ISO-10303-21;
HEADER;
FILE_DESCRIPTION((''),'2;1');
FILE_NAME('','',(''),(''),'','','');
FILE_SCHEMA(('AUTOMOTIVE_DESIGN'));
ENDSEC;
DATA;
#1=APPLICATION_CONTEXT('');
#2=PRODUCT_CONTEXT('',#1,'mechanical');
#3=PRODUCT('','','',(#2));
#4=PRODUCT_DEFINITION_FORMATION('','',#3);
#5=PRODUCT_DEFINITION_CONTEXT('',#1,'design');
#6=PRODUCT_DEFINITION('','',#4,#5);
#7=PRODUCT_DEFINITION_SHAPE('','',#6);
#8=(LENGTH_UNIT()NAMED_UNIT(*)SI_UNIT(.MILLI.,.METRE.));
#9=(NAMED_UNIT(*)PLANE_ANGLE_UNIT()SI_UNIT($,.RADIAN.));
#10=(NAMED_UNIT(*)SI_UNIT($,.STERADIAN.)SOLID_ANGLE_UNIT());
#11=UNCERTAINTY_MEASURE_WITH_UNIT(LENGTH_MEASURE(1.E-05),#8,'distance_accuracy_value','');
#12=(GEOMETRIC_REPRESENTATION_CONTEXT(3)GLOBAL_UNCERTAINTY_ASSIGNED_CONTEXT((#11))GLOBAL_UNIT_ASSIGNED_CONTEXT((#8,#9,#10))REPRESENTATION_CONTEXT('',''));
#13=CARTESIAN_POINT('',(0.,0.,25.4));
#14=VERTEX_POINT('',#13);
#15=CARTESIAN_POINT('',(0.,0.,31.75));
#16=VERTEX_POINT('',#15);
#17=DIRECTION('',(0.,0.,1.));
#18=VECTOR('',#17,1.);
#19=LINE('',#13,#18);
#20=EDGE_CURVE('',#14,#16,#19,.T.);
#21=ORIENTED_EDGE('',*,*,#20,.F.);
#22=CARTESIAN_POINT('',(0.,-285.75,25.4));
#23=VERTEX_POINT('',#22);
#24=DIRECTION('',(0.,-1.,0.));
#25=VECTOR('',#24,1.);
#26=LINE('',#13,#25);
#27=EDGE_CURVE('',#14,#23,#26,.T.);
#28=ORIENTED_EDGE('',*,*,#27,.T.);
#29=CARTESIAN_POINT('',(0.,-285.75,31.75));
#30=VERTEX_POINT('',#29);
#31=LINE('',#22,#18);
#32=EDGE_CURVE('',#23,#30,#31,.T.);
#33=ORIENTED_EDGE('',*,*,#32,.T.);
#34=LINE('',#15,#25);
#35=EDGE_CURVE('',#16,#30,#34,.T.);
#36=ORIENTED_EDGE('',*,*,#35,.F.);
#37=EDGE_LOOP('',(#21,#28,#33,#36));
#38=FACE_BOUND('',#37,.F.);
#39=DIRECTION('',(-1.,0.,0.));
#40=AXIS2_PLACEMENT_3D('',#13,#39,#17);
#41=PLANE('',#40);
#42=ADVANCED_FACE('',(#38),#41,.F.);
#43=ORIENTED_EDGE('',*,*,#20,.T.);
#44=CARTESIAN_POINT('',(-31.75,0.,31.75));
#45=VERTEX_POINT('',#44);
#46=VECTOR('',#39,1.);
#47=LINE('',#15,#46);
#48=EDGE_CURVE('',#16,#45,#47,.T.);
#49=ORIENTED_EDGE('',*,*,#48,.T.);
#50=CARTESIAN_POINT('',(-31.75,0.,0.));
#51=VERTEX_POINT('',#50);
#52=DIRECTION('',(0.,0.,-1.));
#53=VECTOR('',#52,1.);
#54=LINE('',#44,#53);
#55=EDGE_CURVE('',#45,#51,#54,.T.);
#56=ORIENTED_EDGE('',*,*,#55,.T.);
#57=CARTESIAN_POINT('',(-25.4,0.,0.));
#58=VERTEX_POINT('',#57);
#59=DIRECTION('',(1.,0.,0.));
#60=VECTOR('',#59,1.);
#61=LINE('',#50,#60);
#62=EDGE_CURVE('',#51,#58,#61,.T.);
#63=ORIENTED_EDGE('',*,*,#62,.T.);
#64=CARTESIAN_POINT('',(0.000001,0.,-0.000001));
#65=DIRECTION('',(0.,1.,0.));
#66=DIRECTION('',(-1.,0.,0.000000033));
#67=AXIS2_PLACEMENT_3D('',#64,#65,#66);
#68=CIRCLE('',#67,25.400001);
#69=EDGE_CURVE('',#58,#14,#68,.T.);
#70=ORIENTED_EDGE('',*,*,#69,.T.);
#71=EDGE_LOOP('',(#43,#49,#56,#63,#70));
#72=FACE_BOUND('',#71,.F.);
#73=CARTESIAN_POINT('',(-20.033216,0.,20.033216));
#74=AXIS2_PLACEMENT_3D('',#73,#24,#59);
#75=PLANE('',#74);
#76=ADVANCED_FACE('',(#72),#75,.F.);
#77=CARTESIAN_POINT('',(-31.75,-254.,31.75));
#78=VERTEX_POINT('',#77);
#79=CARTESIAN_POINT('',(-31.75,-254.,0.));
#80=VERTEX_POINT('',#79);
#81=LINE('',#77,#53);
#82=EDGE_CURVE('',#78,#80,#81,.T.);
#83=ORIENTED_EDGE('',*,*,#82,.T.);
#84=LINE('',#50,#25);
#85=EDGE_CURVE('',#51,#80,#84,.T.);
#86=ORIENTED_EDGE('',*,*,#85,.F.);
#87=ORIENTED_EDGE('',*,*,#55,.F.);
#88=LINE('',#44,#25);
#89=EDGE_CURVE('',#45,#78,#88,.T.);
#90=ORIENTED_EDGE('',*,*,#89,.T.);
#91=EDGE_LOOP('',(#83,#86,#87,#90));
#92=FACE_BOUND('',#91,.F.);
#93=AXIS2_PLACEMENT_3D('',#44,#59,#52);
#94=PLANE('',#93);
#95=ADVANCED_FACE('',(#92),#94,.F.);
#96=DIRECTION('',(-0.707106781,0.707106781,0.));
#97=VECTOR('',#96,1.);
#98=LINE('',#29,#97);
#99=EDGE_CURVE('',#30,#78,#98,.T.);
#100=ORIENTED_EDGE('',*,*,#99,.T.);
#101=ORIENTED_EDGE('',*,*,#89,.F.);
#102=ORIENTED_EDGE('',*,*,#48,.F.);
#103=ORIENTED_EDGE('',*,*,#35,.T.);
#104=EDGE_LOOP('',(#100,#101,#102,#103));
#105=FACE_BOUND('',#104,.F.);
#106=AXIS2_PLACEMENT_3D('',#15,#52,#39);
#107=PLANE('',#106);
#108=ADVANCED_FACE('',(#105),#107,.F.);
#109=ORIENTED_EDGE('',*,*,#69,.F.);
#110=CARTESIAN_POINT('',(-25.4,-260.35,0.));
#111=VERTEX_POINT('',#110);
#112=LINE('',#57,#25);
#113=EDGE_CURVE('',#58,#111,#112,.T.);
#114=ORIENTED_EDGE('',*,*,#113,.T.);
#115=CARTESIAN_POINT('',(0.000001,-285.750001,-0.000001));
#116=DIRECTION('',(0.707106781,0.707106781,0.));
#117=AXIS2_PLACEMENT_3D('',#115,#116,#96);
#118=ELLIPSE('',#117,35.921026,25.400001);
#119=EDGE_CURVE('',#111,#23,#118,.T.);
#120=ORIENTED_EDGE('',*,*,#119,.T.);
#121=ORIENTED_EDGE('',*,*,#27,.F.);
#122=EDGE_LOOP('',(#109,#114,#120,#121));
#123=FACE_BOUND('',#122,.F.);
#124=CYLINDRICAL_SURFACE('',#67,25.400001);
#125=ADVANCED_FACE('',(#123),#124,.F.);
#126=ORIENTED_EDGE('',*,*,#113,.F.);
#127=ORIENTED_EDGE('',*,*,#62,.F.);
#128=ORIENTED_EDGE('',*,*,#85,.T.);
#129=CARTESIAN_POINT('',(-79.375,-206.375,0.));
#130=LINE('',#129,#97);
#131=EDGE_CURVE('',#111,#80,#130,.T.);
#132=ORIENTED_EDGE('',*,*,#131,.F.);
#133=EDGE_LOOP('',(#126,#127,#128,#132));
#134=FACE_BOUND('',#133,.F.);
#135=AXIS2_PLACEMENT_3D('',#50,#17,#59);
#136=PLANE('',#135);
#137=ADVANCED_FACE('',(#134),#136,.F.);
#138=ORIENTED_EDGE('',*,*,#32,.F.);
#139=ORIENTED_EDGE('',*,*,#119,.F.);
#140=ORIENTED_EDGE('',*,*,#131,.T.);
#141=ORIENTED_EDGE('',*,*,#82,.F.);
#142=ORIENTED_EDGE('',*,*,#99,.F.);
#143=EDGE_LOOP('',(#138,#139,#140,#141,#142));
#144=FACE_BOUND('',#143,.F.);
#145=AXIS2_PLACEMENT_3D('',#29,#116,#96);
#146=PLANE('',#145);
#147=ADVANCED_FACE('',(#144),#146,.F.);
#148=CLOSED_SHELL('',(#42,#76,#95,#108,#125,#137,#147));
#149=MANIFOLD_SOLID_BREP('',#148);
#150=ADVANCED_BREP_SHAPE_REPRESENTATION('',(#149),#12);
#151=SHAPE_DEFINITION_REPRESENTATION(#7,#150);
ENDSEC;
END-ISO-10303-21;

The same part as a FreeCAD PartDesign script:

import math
import FreeCAD as App
import Part
import Sketcher
Q = App.Units.Quantity


def add_polygon(sketch, points):
    """Adds a closed chain of lines whose ends are joined by coincident constraints."""
    first, n = sketch.GeometryCount, len(points)
    for a, b in zip(points, points[1:] + points[:1]):
        sketch.addGeometry(Part.LineSegment(App.Vector(*a, 0), App.Vector(*b, 0)), False)
    for i in range(n):
        sketch.addConstraint(Sketcher.Constraint("Coincident", first + i, 2, first + (i + 1) % n, 1))

doc = App.newDocument("Part")
body = doc.addObject("PartDesign::Body", "Body")

# Sketch on XZ plane
sketch1 = body.newObject("Sketcher::SketchObject", "Sketch")
sketch1.AttachmentSupport = (doc.getObject("XZ_Plane"), [""])
sketch1.MapMode = "FlatFace"
sketch1.addGeometry([
    Part.LineSegment(App.Vector(-31.75, 0, 0), App.Vector(-25.4, 0, 0)),  # 0
    Part.ArcOfCircle(Part.Circle(App.Vector(0.000001, -0.000001, 0), App.Vector(0, 0, 1), 25.400001), math.radians(90.000002), math.radians(179.999998)),  # 1
    Part.LineSegment(App.Vector(0, 25.4, 0), App.Vector(0, 31.75, 0)),  # 2
    Part.LineSegment(App.Vector(0, 31.75, 0), App.Vector(-31.75, 31.75, 0)),  # 3
    Part.LineSegment(App.Vector(-31.75, 31.75, 0), App.Vector(-31.75, 0, 0)),  # 4
], False)
sketch1.addConstraint([
    Sketcher.Constraint("Coincident", 0, 2, 1, 2),
    Sketcher.Constraint("Coincident", 1, 1, 2, 1),
    Sketcher.Constraint("Coincident", 2, 2, 3, 1),
    Sketcher.Constraint("Coincident", 3, 2, 4, 1),
    Sketcher.Constraint("Coincident", 4, 2, 0, 1),
    Sketcher.Constraint("Horizontal", 0),
    Sketcher.Constraint("Vertical", 2),
    Sketcher.Constraint("Horizontal", 3),
    Sketcher.Constraint("Vertical", 4),
    Sketcher.Constraint("Coincident", 1, 3, -1, 1),
    Sketcher.Constraint("PointOnObject", 0, 2, -1),
    Sketcher.Constraint("PointOnObject", 1, 1, -2),
    Sketcher.Constraint("Equal", 0, 2),
    Sketcher.Constraint("Radius", 1, Q("1 in")),
    Sketcher.Constraint("DistanceX", 0, 1, 0, 2, Q("0.25 in")),
])
pad1 = body.newObject("PartDesign::Pad", "Pad")
pad1.Profile = sketch1
pad1.Length = Q("11.25 in")

# Sketch on XY plane
sketch2 = body.newObject("Sketcher::SketchObject", "Sketch001")
sketch2.AttachmentSupport = (doc.getObject("XY_Plane"), [""])
sketch2.MapMode = "FlatFace"
sketch2.AttachmentOffset = App.Placement(App.Vector(0, 0, 1.25 * 25.4), App.Rotation())
add_polygon(sketch2, [(-31.75, -285.75), (0, -285.75), (-31.75, -254)])  # lines 0-2
sketch2.addConstraint([
    Sketcher.Constraint("Horizontal", 0),
    Sketcher.Constraint("Vertical", 2),
    Sketcher.Constraint("PointOnObject", 0, 2, -2),
    Sketcher.Constraint("Equal", 0, 2),
    Sketcher.Constraint("DistanceY", 1, 2, -1, 1, Q("10 in")),
    Sketcher.Constraint("DistanceX", 0, 1, 0, 2, Q("1.25 in")),
])
pocket1 = body.newObject("PartDesign::Pocket", "Pocket")
pocket1.Profile = sketch2
pocket1.Length = Q("2 in")

doc.recompute()
